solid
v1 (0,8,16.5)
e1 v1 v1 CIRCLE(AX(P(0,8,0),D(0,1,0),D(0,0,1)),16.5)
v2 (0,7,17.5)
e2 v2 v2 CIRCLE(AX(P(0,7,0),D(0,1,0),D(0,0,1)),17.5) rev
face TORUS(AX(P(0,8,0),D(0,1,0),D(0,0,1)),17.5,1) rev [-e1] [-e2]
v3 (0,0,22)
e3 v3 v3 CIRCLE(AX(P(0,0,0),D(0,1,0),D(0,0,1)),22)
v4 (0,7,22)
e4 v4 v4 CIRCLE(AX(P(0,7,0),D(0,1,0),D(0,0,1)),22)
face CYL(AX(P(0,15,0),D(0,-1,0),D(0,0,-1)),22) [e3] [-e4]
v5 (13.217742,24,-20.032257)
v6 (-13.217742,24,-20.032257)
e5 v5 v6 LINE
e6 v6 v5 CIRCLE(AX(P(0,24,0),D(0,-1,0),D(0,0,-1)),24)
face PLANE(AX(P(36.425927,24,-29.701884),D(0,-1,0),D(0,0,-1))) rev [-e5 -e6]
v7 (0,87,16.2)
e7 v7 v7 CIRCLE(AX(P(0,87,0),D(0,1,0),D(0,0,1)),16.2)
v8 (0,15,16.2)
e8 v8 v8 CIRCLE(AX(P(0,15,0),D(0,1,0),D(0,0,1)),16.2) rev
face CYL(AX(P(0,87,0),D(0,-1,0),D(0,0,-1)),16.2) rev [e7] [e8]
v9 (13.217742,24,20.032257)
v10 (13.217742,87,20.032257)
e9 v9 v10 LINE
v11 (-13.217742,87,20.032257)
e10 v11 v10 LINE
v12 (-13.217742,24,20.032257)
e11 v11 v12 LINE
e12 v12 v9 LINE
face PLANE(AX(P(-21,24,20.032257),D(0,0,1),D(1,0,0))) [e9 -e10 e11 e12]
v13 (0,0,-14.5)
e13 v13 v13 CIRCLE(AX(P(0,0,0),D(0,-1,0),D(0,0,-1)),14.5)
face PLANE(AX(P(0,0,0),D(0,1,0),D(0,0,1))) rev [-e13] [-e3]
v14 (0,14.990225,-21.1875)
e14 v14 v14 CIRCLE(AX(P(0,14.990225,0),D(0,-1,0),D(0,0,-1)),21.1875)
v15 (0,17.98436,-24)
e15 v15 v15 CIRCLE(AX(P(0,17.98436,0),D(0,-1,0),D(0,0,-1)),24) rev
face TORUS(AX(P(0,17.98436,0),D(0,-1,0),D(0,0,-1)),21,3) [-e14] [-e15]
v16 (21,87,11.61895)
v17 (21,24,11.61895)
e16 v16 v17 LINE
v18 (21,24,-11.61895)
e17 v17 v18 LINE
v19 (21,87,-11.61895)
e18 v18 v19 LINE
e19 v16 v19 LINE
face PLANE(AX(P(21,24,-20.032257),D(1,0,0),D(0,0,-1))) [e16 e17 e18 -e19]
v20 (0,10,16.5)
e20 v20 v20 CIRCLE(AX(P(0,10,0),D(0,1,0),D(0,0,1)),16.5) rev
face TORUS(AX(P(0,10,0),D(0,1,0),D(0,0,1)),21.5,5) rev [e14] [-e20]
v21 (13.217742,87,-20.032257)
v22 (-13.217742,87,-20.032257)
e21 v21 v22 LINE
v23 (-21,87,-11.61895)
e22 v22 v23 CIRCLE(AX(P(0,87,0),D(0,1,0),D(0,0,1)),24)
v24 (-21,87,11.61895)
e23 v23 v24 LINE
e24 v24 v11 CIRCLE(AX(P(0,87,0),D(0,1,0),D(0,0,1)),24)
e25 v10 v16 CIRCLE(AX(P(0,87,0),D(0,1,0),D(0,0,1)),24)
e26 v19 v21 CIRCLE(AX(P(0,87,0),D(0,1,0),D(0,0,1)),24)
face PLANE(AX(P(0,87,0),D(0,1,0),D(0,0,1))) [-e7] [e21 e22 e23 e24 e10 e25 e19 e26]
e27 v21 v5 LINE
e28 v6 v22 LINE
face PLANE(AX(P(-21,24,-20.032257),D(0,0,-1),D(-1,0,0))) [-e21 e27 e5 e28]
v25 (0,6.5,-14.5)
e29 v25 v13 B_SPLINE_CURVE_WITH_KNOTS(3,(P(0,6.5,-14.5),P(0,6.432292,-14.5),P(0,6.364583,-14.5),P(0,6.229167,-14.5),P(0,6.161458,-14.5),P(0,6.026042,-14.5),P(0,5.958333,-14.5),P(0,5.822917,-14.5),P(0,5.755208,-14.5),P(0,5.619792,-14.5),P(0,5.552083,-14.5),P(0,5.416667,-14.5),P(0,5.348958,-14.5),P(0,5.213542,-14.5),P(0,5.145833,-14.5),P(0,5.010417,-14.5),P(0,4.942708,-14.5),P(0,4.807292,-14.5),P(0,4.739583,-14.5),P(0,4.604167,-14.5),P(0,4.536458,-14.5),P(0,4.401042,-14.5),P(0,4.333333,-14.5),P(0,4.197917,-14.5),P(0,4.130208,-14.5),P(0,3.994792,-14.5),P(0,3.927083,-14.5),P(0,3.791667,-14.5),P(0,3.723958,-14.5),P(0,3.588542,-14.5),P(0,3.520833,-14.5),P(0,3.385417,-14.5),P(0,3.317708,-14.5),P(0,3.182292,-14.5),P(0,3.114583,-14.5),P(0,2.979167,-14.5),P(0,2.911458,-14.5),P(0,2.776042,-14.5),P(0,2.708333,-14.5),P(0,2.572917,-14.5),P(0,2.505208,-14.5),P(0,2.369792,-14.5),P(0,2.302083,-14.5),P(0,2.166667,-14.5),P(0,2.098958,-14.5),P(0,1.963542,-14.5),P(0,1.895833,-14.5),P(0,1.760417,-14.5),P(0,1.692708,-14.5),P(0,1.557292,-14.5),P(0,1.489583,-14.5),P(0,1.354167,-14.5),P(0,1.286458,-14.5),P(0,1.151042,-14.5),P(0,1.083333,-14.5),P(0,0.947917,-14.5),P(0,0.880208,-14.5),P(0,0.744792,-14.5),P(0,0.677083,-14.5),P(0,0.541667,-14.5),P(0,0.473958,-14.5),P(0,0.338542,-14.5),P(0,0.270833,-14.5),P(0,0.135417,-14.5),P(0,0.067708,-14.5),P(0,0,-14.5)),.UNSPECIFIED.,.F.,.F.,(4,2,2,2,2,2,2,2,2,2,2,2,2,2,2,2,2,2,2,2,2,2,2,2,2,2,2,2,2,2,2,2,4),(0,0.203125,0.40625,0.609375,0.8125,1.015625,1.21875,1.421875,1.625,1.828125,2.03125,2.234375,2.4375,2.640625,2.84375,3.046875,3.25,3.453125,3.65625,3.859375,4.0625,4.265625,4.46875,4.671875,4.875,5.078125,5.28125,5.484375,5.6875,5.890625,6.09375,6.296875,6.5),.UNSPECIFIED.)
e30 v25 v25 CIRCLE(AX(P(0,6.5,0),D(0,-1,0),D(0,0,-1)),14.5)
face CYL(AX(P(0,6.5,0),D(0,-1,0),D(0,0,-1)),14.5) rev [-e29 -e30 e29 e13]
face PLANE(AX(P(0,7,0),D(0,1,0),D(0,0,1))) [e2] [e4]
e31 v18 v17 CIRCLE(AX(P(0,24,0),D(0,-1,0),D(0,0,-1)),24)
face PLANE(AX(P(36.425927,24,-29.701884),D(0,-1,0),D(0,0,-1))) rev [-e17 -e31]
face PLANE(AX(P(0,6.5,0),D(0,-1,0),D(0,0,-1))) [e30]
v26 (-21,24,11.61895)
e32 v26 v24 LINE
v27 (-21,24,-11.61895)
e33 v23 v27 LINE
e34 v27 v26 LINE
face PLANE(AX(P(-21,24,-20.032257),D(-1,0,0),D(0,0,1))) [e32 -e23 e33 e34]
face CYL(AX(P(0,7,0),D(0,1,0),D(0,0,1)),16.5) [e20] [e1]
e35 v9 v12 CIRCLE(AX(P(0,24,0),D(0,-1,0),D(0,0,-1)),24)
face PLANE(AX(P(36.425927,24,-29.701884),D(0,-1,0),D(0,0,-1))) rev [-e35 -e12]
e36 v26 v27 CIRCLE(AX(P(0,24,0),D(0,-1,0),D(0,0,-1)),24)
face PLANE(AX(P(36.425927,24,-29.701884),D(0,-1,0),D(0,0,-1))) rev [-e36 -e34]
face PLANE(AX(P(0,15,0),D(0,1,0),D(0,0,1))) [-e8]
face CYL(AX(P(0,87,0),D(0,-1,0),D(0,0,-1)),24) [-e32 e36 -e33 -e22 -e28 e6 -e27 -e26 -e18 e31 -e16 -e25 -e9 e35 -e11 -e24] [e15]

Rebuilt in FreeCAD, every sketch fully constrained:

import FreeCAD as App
import Part
import Sketcher
from FreeCAD import Vector


def edges_at(feature, points):
    """Names of the edges that pass closest to the given points."""
    edges = feature.Shape.Edges
    near = lambda p: min(range(len(edges)), key=lambda i: edges[i].distToShape(Part.Vertex(*p))[0])
    return sorted({f"Edge{near(p) + 1}" for p in points})

doc = App.newDocument("Part")
params = doc.addObject("Spreadsheet::Sheet", "Params")
for row, (alias, value) in enumerate([
    ("sketch1_diameter", "44 mm"),
    ("pad1_length", "15 mm"),
    ("sketch2_diameter", "29 mm"),
    ("pocket1_length", "6.5 mm"),
    ("sketch3_diameter", "50 mm"),
    ("sketch3_diameter2", "33 mm"),
    ("pocket2_length", "8 mm"),
    ("sketch4_diameter", "48 mm"),
    ("sketch4_diameter2", "32.4 mm"),
    ("pad2_length", "72 mm"),
    ("fillet_radius", "1 mm"),
    ("fillet2_radius", "5 mm"),
    ("fillet3_radius", "3 mm"),
    ("sketch5_width", "42 mm"),
    ("pocket3_length", "50 mm"),
    ("pocket3_length2", "26 mm"),
], start=1):
    params.set(f"A{row}", alias)
    params.set(f"B{row}", "=" + value)
    params.setAlias(f"B{row}", alias)

body = doc.addObject("PartDesign::Body", "Body")

# Sketch on XZ plane
sketch1 = body.newObject("Sketcher::SketchObject", "Sketch")
sketch1.AttachmentSupport = (doc.getObject("XZ_Plane"), [""])
sketch1.MapMode = "FlatFace"
sketch1.addGeometry(Part.Circle(Vector(0, 0, 0), Vector(0, 0, 1), 22), False)
sketch1.addConstraint(Sketcher.Constraint("Coincident", 0, 3, -1, 1))
sketch1.addConstraint(Sketcher.Constraint("Diameter", 0, 44.0))
sketch1.setExpression("Constraints[1]", "Params.sketch1_diameter")
pad1 = body.newObject("PartDesign::Pad", "Pad")
pad1.Profile = sketch1
pad1.setExpression("Length", "Params.pad1_length")
pad1.Reversed = True

# Sketch on XZ plane
sketch2 = body.newObject("Sketcher::SketchObject", "Sketch001")
sketch2.AttachmentSupport = (doc.getObject("XZ_Plane"), [""])
sketch2.MapMode = "FlatFace"
sketch2.addGeometry(Part.Circle(Vector(0, 0, 0), Vector(0, 0, 1), 14), False)
sketch2.addConstraint(Sketcher.Constraint("Coincident", 0, 3, -1, 1))
sketch2.addConstraint(Sketcher.Constraint("Diameter", 0, 29.0))
sketch2.setExpression("Constraints[1]", "Params.sketch2_diameter")
pocket1 = body.newObject("PartDesign::Pocket", "Pocket")
pocket1.Profile = sketch2
pocket1.setExpression("Length", "Params.pocket1_length")

# Sketch on XZ plane
sketch3 = body.newObject("Sketcher::SketchObject", "Sketch002")
sketch3.AttachmentSupport = (doc.getObject("XZ_Plane"), [""])
sketch3.MapMode = "FlatFace"
sketch3.AttachmentOffset = App.Placement(Vector(0, 0, -15), App.Rotation())
sketch3.addGeometry(Part.Circle(Vector(0, 0, 0), Vector(0, 0, 1), 25), False)
sketch3.addGeometry(Part.Circle(Vector(0, 0, 0), Vector(0, 0, 1), 16), False)
sketch3.addConstraint(Sketcher.Constraint("Coincident", 0, 3, -1, 1))
sketch3.addConstraint(Sketcher.Constraint("Coincident", 1, 3, -1, 1))
sketch3.addConstraint(Sketcher.Constraint("Diameter", 0, 50.0))
sketch3.addConstraint(Sketcher.Constraint("Diameter", 1, 33.0))
sketch3.setExpression("Constraints[2]", "Params.sketch3_diameter")
sketch3.setExpression("Constraints[3]", "Params.sketch3_diameter2")
pocket2 = body.newObject("PartDesign::Pocket", "Pocket001")
pocket2.Profile = sketch3
pocket2.setExpression("Length", "Params.pocket2_length")
pocket2.Reversed = True

# Sketch on XZ plane
sketch4 = body.newObject("Sketcher::SketchObject", "Sketch003")
sketch4.AttachmentSupport = (doc.getObject("XZ_Plane"), [""])
sketch4.MapMode = "FlatFace"
sketch4.AttachmentOffset = App.Placement(Vector(0, 0, -15), App.Rotation())
sketch4.addGeometry(Part.Circle(Vector(0, 0, 0), Vector(0, 0, 1), 24), False)
sketch4.addGeometry(Part.Circle(Vector(0, 0, 0), Vector(0, 0, 1), 16), False)
sketch4.addConstraint(Sketcher.Constraint("Coincident", 0, 3, -1, 1))
sketch4.addConstraint(Sketcher.Constraint("Coincident", 1, 3, -1, 1))
sketch4.addConstraint(Sketcher.Constraint("Diameter", 0, 48.0))
sketch4.addConstraint(Sketcher.Constraint("Diameter", 1, 32.4))
sketch4.setExpression("Constraints[2]", "Params.sketch4_diameter")
sketch4.setExpression("Constraints[3]", "Params.sketch4_diameter2")
pad2 = body.newObject("PartDesign::Pad", "Pad001")
pad2.Profile = sketch4
pad2.setExpression("Length", "Params.pad2_length")
pad2.Reversed = True
doc.recompute()

fillet = body.newObject("PartDesign::Fillet", "Fillet")
fillet.Base = (pad2, edges_at(pad2, [(0, 7, -16.5)]))
fillet.setExpression("Radius", "Params.fillet_radius")
doc.recompute()

fillet2 = body.newObject("PartDesign::Fillet", "Fillet001")
fillet2.Base = (fillet, edges_at(fillet, [(0, 15, -16.5)]))
fillet2.setExpression("Radius", "Params.fillet2_radius")
doc.recompute()

fillet3 = body.newObject("PartDesign::Fillet", "Fillet002")
fillet3.Base = (fillet2, edges_at(fillet2, [(0, 15, -24)]))
fillet3.setExpression("Radius", "Params.fillet3_radius")

# Sketch on XZ plane
sketch5 = body.newObject("Sketcher::SketchObject", "Sketch004")
sketch5.AttachmentSupport = (doc.getObject("XZ_Plane"), [""])
sketch5.MapMode = "FlatFace"
sketch5.AttachmentOffset = App.Placement(Vector(0, 0, -50), App.Rotation())
sketch5.addGeometry(Part.LineSegment(Vector(36, -30, 0), Vector(-36, -30, 0)), False)
sketch5.addGeometry(Part.LineSegment(Vector(-36, -30, 0), Vector(-36, 30, 0)), False)
sketch5.addGeometry(Part.LineSegment(Vector(-36, 30, 0), Vector(36, 30, 0)), False)
sketch5.addGeometry(Part.LineSegment(Vector(36, 30, 0), Vector(36, -30, 0)), False)
sketch5.addGeometry(Part.LineSegment(Vector(-21, 20, 0), Vector(-21, -20, 0)), False)
sketch5.addGeometry(Part.LineSegment(Vector(-21, -20, 0), Vector(21, -20, 0)), False)
sketch5.addGeometry(Part.LineSegment(Vector(21, -20, 0), Vector(21, 20, 0)), False)
sketch5.addGeometry(Part.LineSegment(Vector(21, 20, 0), Vector(-21, 20, 0)), False)
sketch5.addConstraint(Sketcher.Constraint("Coincident", 0, 2, 1, 1))
sketch5.addConstraint(Sketcher.Constraint("Coincident", 1, 2, 2, 1))
sketch5.addConstraint(Sketcher.Constraint("Coincident", 2, 2, 3, 1))
sketch5.addConstraint(Sketcher.Constraint("Coincident", 3, 2, 0, 1))
sketch5.addConstraint(Sketcher.Constraint("Coincident", 4, 2, 5, 1))
sketch5.addConstraint(Sketcher.Constraint("Coincident", 5, 2, 6, 1))
sketch5.addConstraint(Sketcher.Constraint("Coincident", 6, 2, 7, 1))
sketch5.addConstraint(Sketcher.Constraint("Coincident", 7, 2, 4, 1))
sketch5.addConstraint(Sketcher.Constraint("Horizontal", 0))
sketch5.addConstraint(Sketcher.Constraint("Vertical", 1))
sketch5.addConstraint(Sketcher.Constraint("Horizontal", 2))
sketch5.addConstraint(Sketcher.Constraint("Vertical", 3))
sketch5.addConstraint(Sketcher.Constraint("Vertical", 4))
sketch5.addConstraint(Sketcher.Constraint("Horizontal", 5))
sketch5.addConstraint(Sketcher.Constraint("Vertical", 6))
sketch5.addConstraint(Sketcher.Constraint("Horizontal", 7))
sketch5.addConstraint(Sketcher.Constraint("Symmetric", 4, 2, 6, 2, -1, 1))
sketch5.addConstraint(Sketcher.Constraint("DistanceX", 5, 1, 5, 2, 42.0))
sketch5.addConstraint(Sketcher.Constraint("DistanceY", 1, 1, 1, 2, 59.22461))
sketch5.addConstraint(Sketcher.Constraint("DistanceX", 0, 2, 0, 1, 72.851853))
sketch5.addConstraint(Sketcher.Constraint("DistanceY", 4, 2, 4, 1, 40.064513))
sketch5.addConstraint(Sketcher.Constraint("DistanceY", 6, 2, 2, 2, 9.490469))
sketch5.addConstraint(Sketcher.Constraint("DistanceX", 0, 2, -1, 1, 36.425927))
sketch5.setExpression("Constraints[17]", "Params.sketch5_width")
pocket3 = body.newObject("PartDesign::Pocket", "Pocket002")
pocket3.Profile = sketch5
pocket3.Type = "TwoLengths"
pocket3.setExpression("Length", "Params.pocket3_length")
pocket3.setExpression("Length2", "Params.pocket3_length2")

doc.recompute()
